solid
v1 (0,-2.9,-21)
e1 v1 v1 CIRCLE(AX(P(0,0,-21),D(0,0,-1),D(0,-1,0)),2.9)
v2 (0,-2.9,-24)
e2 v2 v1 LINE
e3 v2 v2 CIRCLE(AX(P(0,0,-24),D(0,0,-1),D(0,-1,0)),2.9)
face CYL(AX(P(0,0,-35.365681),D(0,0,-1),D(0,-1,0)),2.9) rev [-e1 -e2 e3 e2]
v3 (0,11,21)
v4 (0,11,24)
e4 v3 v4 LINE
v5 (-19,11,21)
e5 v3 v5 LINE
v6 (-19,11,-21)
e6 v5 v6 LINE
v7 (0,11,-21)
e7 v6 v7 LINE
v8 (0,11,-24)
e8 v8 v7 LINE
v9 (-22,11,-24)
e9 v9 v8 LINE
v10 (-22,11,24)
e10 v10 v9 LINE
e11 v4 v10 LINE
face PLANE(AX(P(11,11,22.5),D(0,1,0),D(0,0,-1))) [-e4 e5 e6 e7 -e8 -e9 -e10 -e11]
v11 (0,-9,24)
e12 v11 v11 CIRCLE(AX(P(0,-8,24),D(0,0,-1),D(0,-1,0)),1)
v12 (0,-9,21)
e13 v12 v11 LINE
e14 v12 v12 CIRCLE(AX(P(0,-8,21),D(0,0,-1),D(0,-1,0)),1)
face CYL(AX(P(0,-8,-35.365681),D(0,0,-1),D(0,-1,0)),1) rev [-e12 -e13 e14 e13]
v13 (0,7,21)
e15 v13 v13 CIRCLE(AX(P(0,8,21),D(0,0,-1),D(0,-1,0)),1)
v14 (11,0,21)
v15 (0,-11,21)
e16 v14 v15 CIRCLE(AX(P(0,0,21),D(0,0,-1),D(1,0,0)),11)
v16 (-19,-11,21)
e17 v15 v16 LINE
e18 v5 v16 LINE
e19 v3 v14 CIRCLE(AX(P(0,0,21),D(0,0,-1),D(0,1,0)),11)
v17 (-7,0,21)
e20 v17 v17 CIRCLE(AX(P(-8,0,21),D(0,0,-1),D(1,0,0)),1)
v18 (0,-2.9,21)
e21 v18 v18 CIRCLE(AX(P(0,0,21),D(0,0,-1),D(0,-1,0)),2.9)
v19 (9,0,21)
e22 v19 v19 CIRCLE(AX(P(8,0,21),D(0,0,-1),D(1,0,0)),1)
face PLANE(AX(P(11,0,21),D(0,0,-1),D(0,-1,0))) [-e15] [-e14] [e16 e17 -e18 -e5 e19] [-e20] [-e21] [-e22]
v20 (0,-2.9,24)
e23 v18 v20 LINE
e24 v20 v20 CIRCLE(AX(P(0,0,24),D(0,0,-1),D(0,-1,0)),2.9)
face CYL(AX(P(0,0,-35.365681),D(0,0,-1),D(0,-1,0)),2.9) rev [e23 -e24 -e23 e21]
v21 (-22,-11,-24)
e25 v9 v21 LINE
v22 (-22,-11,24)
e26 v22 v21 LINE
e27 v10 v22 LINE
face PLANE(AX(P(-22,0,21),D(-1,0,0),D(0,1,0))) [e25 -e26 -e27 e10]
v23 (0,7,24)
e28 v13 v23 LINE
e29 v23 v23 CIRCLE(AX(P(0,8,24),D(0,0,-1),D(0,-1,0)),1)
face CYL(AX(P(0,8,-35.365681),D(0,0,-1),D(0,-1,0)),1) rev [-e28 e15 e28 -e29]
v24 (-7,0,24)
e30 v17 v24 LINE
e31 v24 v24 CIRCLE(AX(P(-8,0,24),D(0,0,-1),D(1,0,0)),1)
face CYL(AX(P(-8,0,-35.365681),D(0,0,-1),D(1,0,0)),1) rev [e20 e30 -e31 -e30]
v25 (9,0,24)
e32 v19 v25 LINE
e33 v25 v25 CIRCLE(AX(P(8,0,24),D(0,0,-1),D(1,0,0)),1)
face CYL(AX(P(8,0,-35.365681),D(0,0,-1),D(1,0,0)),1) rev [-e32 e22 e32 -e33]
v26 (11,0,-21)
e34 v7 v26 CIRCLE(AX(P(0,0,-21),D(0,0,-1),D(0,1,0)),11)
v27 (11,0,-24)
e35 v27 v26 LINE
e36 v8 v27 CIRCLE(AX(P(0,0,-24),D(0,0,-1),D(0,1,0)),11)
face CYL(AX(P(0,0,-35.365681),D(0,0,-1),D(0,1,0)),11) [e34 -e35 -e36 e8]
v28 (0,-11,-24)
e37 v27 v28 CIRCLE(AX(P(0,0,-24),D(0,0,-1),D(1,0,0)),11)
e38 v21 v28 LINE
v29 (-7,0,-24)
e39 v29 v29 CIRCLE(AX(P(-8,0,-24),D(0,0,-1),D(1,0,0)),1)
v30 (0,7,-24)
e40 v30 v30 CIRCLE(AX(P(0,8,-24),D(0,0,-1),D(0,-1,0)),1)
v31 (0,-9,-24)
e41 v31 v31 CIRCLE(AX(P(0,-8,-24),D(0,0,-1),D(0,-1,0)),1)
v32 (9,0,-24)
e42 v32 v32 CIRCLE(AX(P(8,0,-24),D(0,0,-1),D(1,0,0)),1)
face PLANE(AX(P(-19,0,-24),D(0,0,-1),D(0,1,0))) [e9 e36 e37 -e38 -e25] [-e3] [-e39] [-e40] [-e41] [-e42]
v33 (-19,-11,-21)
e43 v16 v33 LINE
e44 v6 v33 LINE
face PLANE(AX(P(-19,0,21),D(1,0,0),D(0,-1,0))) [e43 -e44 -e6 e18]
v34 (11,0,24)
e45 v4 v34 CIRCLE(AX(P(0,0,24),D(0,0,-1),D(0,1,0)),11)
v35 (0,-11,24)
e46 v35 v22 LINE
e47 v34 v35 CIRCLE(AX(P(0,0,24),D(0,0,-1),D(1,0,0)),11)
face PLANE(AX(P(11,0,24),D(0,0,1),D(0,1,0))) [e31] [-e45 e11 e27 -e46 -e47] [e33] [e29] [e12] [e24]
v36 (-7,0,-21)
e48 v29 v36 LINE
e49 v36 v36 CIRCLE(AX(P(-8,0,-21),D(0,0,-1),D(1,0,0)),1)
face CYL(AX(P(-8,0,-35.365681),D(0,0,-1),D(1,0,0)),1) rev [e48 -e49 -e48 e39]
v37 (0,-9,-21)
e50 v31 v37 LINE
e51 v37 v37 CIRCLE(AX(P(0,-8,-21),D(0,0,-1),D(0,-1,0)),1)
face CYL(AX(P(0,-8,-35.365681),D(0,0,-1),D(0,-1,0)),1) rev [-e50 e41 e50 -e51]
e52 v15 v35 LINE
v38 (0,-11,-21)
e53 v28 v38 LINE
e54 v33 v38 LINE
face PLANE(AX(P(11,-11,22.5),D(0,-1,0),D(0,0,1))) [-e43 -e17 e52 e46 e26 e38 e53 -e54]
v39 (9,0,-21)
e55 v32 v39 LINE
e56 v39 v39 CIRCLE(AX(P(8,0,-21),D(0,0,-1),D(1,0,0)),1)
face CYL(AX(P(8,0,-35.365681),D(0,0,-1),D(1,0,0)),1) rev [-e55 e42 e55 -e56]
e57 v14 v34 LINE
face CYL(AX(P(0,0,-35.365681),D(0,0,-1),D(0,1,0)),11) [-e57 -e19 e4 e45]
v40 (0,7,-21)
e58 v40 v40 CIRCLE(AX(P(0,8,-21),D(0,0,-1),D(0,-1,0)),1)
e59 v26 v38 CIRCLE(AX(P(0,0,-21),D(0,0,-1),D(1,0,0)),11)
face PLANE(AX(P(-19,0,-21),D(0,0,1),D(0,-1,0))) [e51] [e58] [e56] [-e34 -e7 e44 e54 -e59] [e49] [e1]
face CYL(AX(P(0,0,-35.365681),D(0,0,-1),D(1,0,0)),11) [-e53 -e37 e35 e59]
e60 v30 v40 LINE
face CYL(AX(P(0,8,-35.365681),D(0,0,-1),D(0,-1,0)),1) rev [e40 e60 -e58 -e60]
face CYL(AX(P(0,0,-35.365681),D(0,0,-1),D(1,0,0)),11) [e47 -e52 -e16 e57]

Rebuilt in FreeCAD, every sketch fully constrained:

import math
import FreeCAD as App
import Part
import Sketcher
Q = App.Units.Quantity

doc = App.newDocument("Part")
body = doc.addObject("PartDesign::Body", "Body")

sketch1 = doc.addObject("Sketcher::SketchObject", "Sketch")
body.addObject(sketch1)
sketch1.AttachmentSupport = (doc.YZ_Plane, [""])
sketch1.MapMode = "FlatFace"
sketch1.addGeometry([
    Part.LineSegment(App.Vector(11, -21, 0), App.Vector(-11, -21, 0)),
    Part.LineSegment(App.Vector(-11, -21, 0), App.Vector(-11, -24, 0)),
    Part.LineSegment(App.Vector(-11, -24, 0), App.Vector(11, -24, 0)),
    Part.LineSegment(App.Vector(11, -24, 0), App.Vector(11, -21, 0)),
], False)
sketch1.addConstraint([
    Sketcher.Constraint("Coincident", 0, 2, 1, 1),
    Sketcher.Constraint("Coincident", 1, 2, 2, 1),
    Sketcher.Constraint("Coincident", 2, 2, 3, 1),
    Sketcher.Constraint("Coincident", 3, 2, 0, 1),
    Sketcher.Constraint("Horizontal", 0),
    Sketcher.Constraint("Vertical", 1),
    Sketcher.Constraint("Horizontal", 2),
    Sketcher.Constraint("Vertical", 3),
    Sketcher.Constraint("DistanceX", 0, 2, 0, 1, Q("22 mm")),
    Sketcher.Constraint("DistanceY", 1, 2, 1, 1, Q("3 mm")),
    Sketcher.Constraint("DistanceX", 0, 2, -1, 1, Q("11 mm")),
    Sketcher.Constraint("DistanceY", 0, 2, -1, 1, Q("21 mm")),
])

sketch2 = doc.addObject("Sketcher::SketchObject", "Sketch001")
body.addObject(sketch2)
sketch2.AttachmentSupport = (doc.XZ_Plane, [""])
sketch2.MapMode = "FlatFace"
sketch2.addGeometry([
    Part.LineSegment(App.Vector(11, 21, 0), App.Vector(-19, 21, 0)),
    Part.LineSegment(App.Vector(-19, 21, 0), App.Vector(-19, -21, 0)),
    Part.LineSegment(App.Vector(-19, -21, 0), App.Vector(11, -21, 0)),
], False)
sketch2.addConstraint([
    Sketcher.Constraint("Coincident", 0, 2, 1, 1),
    Sketcher.Constraint("Coincident", 1, 2, 2, 1),
    Sketcher.Constraint("Horizontal", 0),
    Sketcher.Constraint("Vertical", 1),
    Sketcher.Constraint("Horizontal", 2),
    Sketcher.Constraint("Symmetric", 0, 1, 2, 2, -1),
    Sketcher.Constraint("DistanceX", 0, 2, 0, 1, Q("30 mm")),
    Sketcher.Constraint("DistanceY", 1, 2, 1, 1, Q("42 mm")),
    Sketcher.Constraint("DistanceX", -1, 1, 0, 1, Q("11 mm")),
])
doc.recompute()

additivepipe = doc.addObject("PartDesign::AdditivePipe", "AdditivePipe")
body.addObject(additivepipe)
additivepipe.Profile = sketch1
additivepipe.Spine = (sketch2, ["Edge1", "Edge2", "Edge3"])
additivepipe.Transition = "Right corner"

sketch3 = doc.addObject("Sketcher::SketchObject", "Sketch002")
body.addObject(sketch3)
sketch3.AttachmentSupport = (doc.XY_Plane, [""])
sketch3.MapMode = "FlatFace"
sketch3.addGeometry([
    Part.LineSegment(App.Vector(11, 11, 0), App.Vector(0, 11, 0)),
    Part.ArcOfCircle(Part.Circle(App.Vector(0, 0, 0), App.Vector(0, 0, 1), 11), math.radians(0), math.radians(90)),
    Part.LineSegment(App.Vector(11, 0, 0), App.Vector(11, 11, 0)),
    Part.Circle(App.Vector(8, 0, 0), App.Vector(0, 0, 1), 1),
    Part.Circle(App.Vector(0, -8, 0), App.Vector(0, 0, 1), 1),
    Part.Circle(App.Vector(0, 0, 0), App.Vector(0, 0, 1), 2.9),
    Part.LineSegment(App.Vector(11, -11, 0), App.Vector(11, 0, 0)),
    Part.ArcOfCircle(Part.Circle(App.Vector(0, 0, 0), App.Vector(0, 0, 1), 11), math.radians(-90), math.radians(0)),
    Part.LineSegment(App.Vector(0, -11, 0), App.Vector(11, -11, 0)),
    Part.Circle(App.Vector(0, 8, 0), App.Vector(0, 0, 1), 1),
    Part.Circle(App.Vector(-8, 0, 0), App.Vector(0, 0, 1), 1),
], False)
sketch3.addConstraint([
    Sketcher.Constraint("Tangent", 0, 2, 1, 2),
    Sketcher.Constraint("Tangent", 1, 1, 2, 1),
    Sketcher.Constraint("Coincident", 2, 2, 0, 1),
    Sketcher.Constraint("Tangent", 6, 2, 7, 2),
    Sketcher.Constraint("Tangent", 7, 1, 8, 1),
    Sketcher.Constraint("Coincident", 8, 2, 6, 1),
    Sketcher.Constraint("Horizontal", 0),
    Sketcher.Constraint("Vertical", 2),
    Sketcher.Constraint("Vertical", 6),
    Sketcher.Constraint("Horizontal", 8),
    Sketcher.Constraint("Coincident", 1, 3, -1, 1),
    Sketcher.Constraint("Coincident", 5, 3, -1, 1),
    Sketcher.Constraint("Coincident", 7, 3, -1, 1),
    Sketcher.Constraint("Equal", 3, 4),
    Sketcher.Constraint("Equal", 1, 7),
    Sketcher.Constraint("Equal", 4, 9),
    Sketcher.Constraint("Equal", 9, 10),
    Sketcher.Constraint("Symmetric", 4, 3, 9, 3, -1, 1),
    Sketcher.Constraint("Symmetric", 3, 3, 10, 3, -1, 1),
    Sketcher.Constraint("PointOnObject", 3, 3, -1),
    Sketcher.Constraint("PointOnObject", 4, 3, -2),
    Sketcher.Constraint("Diameter", 3, Q("2 mm")),
    Sketcher.Constraint("Radius", 1, Q("11 mm")),
    Sketcher.Constraint("Diameter", 5, Q("5.8 mm")),
    Sketcher.Constraint("DistanceX", -1, 1, 3, 3, Q("8 mm")),
    Sketcher.Constraint("DistanceY", 4, 3, -1, 1, Q("8 mm")),
])
pocket1 = doc.addObject("PartDesign::Pocket", "Pocket")
body.addObject(pocket1)
pocket1.Profile = sketch3
pocket1.Type = "ThroughAll"
pocket1.Midplane = True

doc.recompute()
